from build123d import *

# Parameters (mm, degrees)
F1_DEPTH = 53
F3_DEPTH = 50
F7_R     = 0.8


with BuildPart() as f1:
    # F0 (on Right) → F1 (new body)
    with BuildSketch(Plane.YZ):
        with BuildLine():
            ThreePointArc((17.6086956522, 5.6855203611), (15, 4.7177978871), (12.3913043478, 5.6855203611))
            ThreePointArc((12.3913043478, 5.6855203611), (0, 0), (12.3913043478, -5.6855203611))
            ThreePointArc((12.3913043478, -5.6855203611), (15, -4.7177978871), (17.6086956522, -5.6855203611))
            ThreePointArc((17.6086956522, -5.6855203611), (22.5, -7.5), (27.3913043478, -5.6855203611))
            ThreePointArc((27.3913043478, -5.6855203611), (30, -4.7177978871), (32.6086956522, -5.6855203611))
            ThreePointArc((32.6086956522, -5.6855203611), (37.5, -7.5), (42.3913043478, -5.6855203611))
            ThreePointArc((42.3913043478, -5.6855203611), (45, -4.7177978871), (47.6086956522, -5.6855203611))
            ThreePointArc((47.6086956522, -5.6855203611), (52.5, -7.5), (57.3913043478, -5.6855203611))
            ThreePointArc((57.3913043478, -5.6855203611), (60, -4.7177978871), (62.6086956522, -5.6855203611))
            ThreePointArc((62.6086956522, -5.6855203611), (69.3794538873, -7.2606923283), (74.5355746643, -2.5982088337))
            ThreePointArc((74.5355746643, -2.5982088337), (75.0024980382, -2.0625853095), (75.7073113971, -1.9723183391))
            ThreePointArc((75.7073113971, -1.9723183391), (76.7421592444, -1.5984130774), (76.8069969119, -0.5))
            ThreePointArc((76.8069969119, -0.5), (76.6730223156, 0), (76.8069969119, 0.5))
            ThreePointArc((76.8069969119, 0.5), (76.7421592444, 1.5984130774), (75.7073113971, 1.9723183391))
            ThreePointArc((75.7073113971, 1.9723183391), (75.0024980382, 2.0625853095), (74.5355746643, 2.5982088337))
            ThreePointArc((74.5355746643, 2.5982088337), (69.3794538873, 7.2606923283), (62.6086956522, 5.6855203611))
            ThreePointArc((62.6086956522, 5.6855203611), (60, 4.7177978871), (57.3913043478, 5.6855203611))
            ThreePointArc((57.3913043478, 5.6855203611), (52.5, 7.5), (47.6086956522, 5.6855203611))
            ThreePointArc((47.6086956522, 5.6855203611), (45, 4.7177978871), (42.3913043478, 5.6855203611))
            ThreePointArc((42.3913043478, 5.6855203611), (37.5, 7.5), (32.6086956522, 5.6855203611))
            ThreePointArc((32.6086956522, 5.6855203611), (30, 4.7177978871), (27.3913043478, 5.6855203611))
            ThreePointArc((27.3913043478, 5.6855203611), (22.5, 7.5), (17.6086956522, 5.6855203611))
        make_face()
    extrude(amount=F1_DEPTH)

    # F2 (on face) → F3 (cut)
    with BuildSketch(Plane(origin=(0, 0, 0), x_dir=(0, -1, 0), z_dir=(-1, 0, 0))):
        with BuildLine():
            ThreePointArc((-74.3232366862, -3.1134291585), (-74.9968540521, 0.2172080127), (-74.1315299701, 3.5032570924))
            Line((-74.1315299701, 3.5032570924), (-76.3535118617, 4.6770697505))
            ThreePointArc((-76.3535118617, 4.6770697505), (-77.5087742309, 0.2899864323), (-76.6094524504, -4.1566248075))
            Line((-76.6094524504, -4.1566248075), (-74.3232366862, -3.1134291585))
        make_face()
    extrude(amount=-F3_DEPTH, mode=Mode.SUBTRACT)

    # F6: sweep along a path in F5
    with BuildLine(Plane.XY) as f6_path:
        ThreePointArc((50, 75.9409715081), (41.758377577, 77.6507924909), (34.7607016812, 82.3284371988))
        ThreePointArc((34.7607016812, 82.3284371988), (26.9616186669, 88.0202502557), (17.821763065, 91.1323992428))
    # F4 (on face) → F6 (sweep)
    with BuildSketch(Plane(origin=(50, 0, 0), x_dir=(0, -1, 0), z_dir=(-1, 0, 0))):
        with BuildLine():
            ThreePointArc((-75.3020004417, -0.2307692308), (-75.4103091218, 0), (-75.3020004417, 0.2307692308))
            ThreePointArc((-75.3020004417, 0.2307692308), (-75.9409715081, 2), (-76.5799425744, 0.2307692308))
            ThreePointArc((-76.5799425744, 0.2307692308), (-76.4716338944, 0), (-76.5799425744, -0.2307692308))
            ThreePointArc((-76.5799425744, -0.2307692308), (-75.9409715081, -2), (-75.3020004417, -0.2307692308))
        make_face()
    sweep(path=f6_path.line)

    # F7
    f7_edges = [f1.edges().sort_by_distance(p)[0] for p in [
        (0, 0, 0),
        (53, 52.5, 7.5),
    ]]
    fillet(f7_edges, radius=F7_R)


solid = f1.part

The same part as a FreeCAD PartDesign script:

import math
import FreeCAD as App
import Part
import Sketcher
from FreeCAD import Vector


def edges_at(feature, points):
    """Names of the edges that pass closest to the given points."""
    edges = feature.Shape.Edges
    near = lambda p: min(range(len(edges)), key=lambda i: edges[i].distToShape(Part.Vertex(*p))[0])
    return sorted({f"Edge{near(p) + 1}" for p in points})

doc = App.newDocument("Part")
body = doc.addObject("PartDesign::Body", "Body")

sketch1 = doc.addObject("Sketcher::SketchObject", "Sketch")
body.addObject(sketch1)
sketch1.AttachmentSupport = (doc.YZ_Plane, [""])
sketch1.MapMode = "FlatFace"
sketch1.addGeometry([
    Part.ArcOfCircle(Part.Circle(Vector(15, 8.717798, 0), Vector(0, 0, 1), 4), math.radians(-130.705707), math.radians(-49.294293)),
    Part.ArcOfCircle(Part.Circle(Vector(7.5, 0, 0), Vector(0, 0, 1), 7.5), math.radians(49.294293), math.radians(310.705707)),
    Part.ArcOfCircle(Part.Circle(Vector(15, -8.717798, 0), Vector(0, 0, 1), 4), math.radians(49.294293), math.radians(130.705707)),
    Part.ArcOfCircle(Part.Circle(Vector(22.5, 0, 0), Vector(0, 0, 1), 7.5), math.radians(-130.705707), math.radians(-49.294293)),
    Part.ArcOfCircle(Part.Circle(Vector(30, -8.717798, 0), Vector(0, 0, 1), 4), math.radians(49.294293), math.radians(130.705707)),
    Part.ArcOfCircle(Part.Circle(Vector(37.5, 0, 0), Vector(0, 0, 1), 7.5), math.radians(-130.705707), math.radians(-49.294293)),
    Part.ArcOfCircle(Part.Circle(Vector(45, -8.717798, 0), Vector(0, 0, 1), 4), math.radians(49.294293), math.radians(130.705707)),
    Part.ArcOfCircle(Part.Circle(Vector(52.5, 0, 0), Vector(0, 0, 1), 7.5), math.radians(-130.705707), math.radians(-49.294293)),
    Part.ArcOfCircle(Part.Circle(Vector(60, -8.717798, 0), Vector(0, 0, 1), 4), math.radians(49.294293), math.radians(130.705707)),
    Part.ArcOfCircle(Part.Circle(Vector(67.5, 0, 0), Vector(0, 0, 1), 7.5), math.radians(-130.705707), math.radians(-20.268981)),
    Part.ArcOfCircle(Part.Circle(Vector(75.473651, -2.944637, 0), Vector(0, 0, 1), 1), math.radians(76.487346), math.radians(159.731019)),
    Part.ArcOfCircle(Part.Circle(Vector(75.940972, -1, 0), Vector(0, 0, 1), 1), math.radians(-103.512654), math.radians(30)),
    Part.ArcOfCircle(Part.Circle(Vector(77.673022, 0, 0), Vector(0, 0, 1), 1), math.radians(150), math.radians(210)),
    Part.ArcOfCircle(Part.Circle(Vector(75.940972, 1, 0), Vector(0, 0, 1), 1), math.radians(-30), math.radians(103.512654)),
    Part.ArcOfCircle(Part.Circle(Vector(75.473651, 2.944637, 0), Vector(0, 0, 1), 1), math.radians(-159.731019), math.radians(-76.487346)),
    Part.ArcOfCircle(Part.Circle(Vector(67.5, 0, 0), Vector(0, 0, 1), 7.5), math.radians(20.268981), math.radians(130.705707)),
    Part.ArcOfCircle(Part.Circle(Vector(60, 8.717798, 0), Vector(0, 0, 1), 4), math.radians(-130.705707), math.radians(-49.294293)),
    Part.ArcOfCircle(Part.Circle(Vector(52.5, 0, 0), Vector(0, 0, 1), 7.5), math.radians(49.294293), math.radians(130.705707)),
    Part.ArcOfCircle(Part.Circle(Vector(45, 8.717798, 0), Vector(0, 0, 1), 4), math.radians(-130.705707), math.radians(-49.294293)),
    Part.ArcOfCircle(Part.Circle(Vector(37.5, 0, 0), Vector(0, 0, 1), 7.5), math.radians(49.294293), math.radians(130.705707)),
    Part.ArcOfCircle(Part.Circle(Vector(30, 8.717798, 0), Vector(0, 0, 1), 4), math.radians(-130.705707), math.radians(-49.294293)),
    Part.ArcOfCircle(Part.Circle(Vector(22.5, 0, 0), Vector(0, 0, 1), 7.5), math.radians(49.294293), math.radians(130.705707)),
], False)
sketch1.addConstraint([
    Sketcher.Constraint("Tangent", 0, 1, 1, 1),
    Sketcher.Constraint("Tangent", 1, 2, 2, 2),
    Sketcher.Constraint("Tangent", 2, 1, 3, 1),
    Sketcher.Constraint("Tangent", 3, 2, 4, 2),
    Sketcher.Constraint("Tangent", 4, 1, 5, 1),
    Sketcher.Constraint("Tangent", 5, 2, 6, 2),
    Sketcher.Constraint("Tangent", 6, 1, 7, 1),
    Sketcher.Constraint("Tangent", 7, 2, 8, 2),
    Sketcher.Constraint("Tangent", 8, 1, 9, 1),
    Sketcher.Constraint("Tangent", 9, 2, 10, 2),
    Sketcher.Constraint("Tangent", 10, 1, 11, 1),
    Sketcher.Constraint("Tangent", 11, 2, 12, 2),
    Sketcher.Constraint("Tangent", 12, 1, 13, 1),
    Sketcher.Constraint("Tangent", 13, 2, 14, 2),
    Sketcher.Constraint("Tangent", 14, 1, 15, 1),
    Sketcher.Constraint("Tangent", 15, 2, 16, 2),
    Sketcher.Constraint("Tangent", 16, 1, 17, 1),
    Sketcher.Constraint("Tangent", 17, 2, 18, 2),
    Sketcher.Constraint("Tangent", 18, 1, 19, 1),
    Sketcher.Constraint("Tangent", 19, 2, 20, 2),
    Sketcher.Constraint("Tangent", 20, 1, 21, 1),
    Sketcher.Constraint("Tangent", 21, 2, 0, 2),
    Sketcher.Constraint("Coincident", 15, 3, 9, 3),
    Sketcher.Constraint("Coincident", 17, 3, 7, 3),
    Sketcher.Constraint("Coincident", 19, 3, 5, 3),
    Sketcher.Constraint("Coincident", 21, 3, 3, 3),
    Sketcher.Constraint("Equal", 0, 2),
    Sketcher.Constraint("Equal", 1, 3),
    Sketcher.Constraint("Equal", 2, 4),
    Sketcher.Constraint("Equal", 3, 5),
    Sketcher.Constraint("Equal", 4, 6),
    Sketcher.Constraint("Equal", 5, 7),
    Sketcher.Constraint("Equal", 6, 8),
    Sketcher.Constraint("Equal", 7, 9),
    Sketcher.Constraint("Equal", 10, 11),
    Sketcher.Constraint("Equal", 11, 12),
    Sketcher.Constraint("Equal", 12, 13),
    Sketcher.Constraint("Equal", 13, 14),
    Sketcher.Constraint("Equal", 9, 15),
    Sketcher.Constraint("Equal", 8, 16),
    Sketcher.Constraint("Equal", 15, 17),
    Sketcher.Constraint("Equal", 16, 18),
    Sketcher.Constraint("Equal", 17, 19),
    Sketcher.Constraint("Equal", 18, 20),
    Sketcher.Constraint("Equal", 19, 21),
    Sketcher.Constraint("Symmetric", 0, 3, 2, 3, -1),
    Sketcher.Constraint("Symmetric", 11, 3, 13, 3, -1),
    Sketcher.Constraint("Symmetric", 8, 3, 16, 3, -1),
    Sketcher.Constraint("PointOnObject", 5, 3, -1),
    Sketcher.Constraint("Horizontal", 2, 3, 4, 3),
    Sketcher.Constraint("Horizontal", 4, 3, 6, 3),
    Sketcher.Constraint("Horizontal", 6, 3, 8, 3),
    Sketcher.Constraint("Radius", 0, 4.0),
    Sketcher.Constraint("Radius", 10, 1.0),
    Sketcher.Constraint("Radius", 1, 7.5),
    Sketcher.Constraint("DistanceX", -1, 1, 0, 3, 15.0),
    Sketcher.Constraint("DistanceX", -1, 1, 4, 3, 30.0),
    Sketcher.Constraint("DistanceY", 11, 3, -1, 1, 1.0),
    Sketcher.Constraint("DistanceX", -1, 1, 10, 3, 75.473651),
])
pad1 = doc.addObject("PartDesign::Pad", "Pad")
body.addObject(pad1)
pad1.Profile = sketch1
pad1.Length = 53

sketch2 = doc.addObject("Sketcher::SketchObject", "Sketch001")
body.addObject(sketch2)
sketch2.AttachmentSupport = (doc.YZ_Plane, [""])
sketch2.MapMode = "FlatFace"
sketch2.addGeometry([
    Part.ArcOfCircle(Part.Circle(Vector(67.5, 0, 0), Vector(0, 0, 1), 7.5), math.radians(-24.527119), math.radians(27.846277)),
    Part.LineSegment(Vector(74.13153, 3.503257, 0), Vector(76.353512, 4.67707, 0)),
    Part.ArcOfCircle(Part.Circle(Vector(67.5, 0, 0), Vector(0, 0, 1), 10.012974), math.radians(-24.527119), math.radians(27.846277)),
    Part.LineSegment(Vector(76.609452, -4.156625, 0), Vector(74.323237, -3.113429, 0)),
], False)
sketch2.addConstraint([
    Sketcher.Constraint("Coincident", 0, 2, 1, 1),
    Sketcher.Constraint("Coincident", 1, 2, 2, 2),
    Sketcher.Constraint("Coincident", 2, 1, 3, 1),
    Sketcher.Constraint("Coincident", 3, 2, 0, 1),
    Sketcher.Constraint("Coincident", 2, 3, 0, 3),
    Sketcher.Constraint("PointOnObject", 0, 3, -1),
    Sketcher.Constraint("Radius", 0, 7.5),
    Sketcher.Constraint("DistanceX", -1, 1, 0, 3, 67.5),
    Sketcher.Constraint("Radius", 2, 10.012974),
    Sketcher.Constraint("DistanceY", 3, 2, 1, 2, 7.790499),
    Sketcher.Constraint("DistanceX", -1, 1, 0, 2, 74.13153),
    Sketcher.Constraint("DistanceX", -1, 1, 1, 2, 76.353512),
    Sketcher.Constraint("DistanceY", 2, 1, 0, 2, 7.659882),
])
pocket1 = doc.addObject("PartDesign::Pocket", "Pocket")
body.addObject(pocket1)
pocket1.Profile = sketch2
pocket1.Length = 50
pocket1.Reversed = True

sketch3 = doc.addObject("Sketcher::SketchObject", "Sketch002")
body.addObject(sketch3)
sketch3.AttachmentSupport = (doc.YZ_Plane, [""])
sketch3.MapMode = "FlatFace"
sketch3.AttachmentOffset = App.Placement(Vector(0, 0, 50), App.Rotation())
sketch3.addGeometry([
    Part.ArcOfCircle(Part.Circle(Vector(75.110309, 0, 0), Vector(0, 0, 1), 0.3), math.radians(-50.284863), math.radians(50.284863)),
    Part.ArcOfCircle(Part.Circle(Vector(75.940972, 1, 0), Vector(0, 0, 1), 1), math.radians(-50.284863), math.radians(230.284863)),
    Part.ArcOfCircle(Part.Circle(Vector(76.771634, 0, 0), Vector(0, 0, 1), 0.3), math.radians(129.715137), math.radians(230.284863)),
    Part.ArcOfCircle(Part.Circle(Vector(75.940972, -1, 0), Vector(0, 0, 1), 1), math.radians(129.715137), math.radians(410.284863)),
], False)
sketch3.addConstraint([
    Sketcher.Constraint("Tangent", 0, 2, 1, 2),
    Sketcher.Constraint("Tangent", 1, 1, 2, 1),
    Sketcher.Constraint("Tangent", 2, 2, 3, 2),
    Sketcher.Constraint("Tangent", 3, 1, 0, 1),
    Sketcher.Constraint("Equal", 0, 2),
    Sketcher.Constraint("Equal", 1, 3),
    Sketcher.Constraint("Symmetric", 1, 3, 3, 3, -1),
    Sketcher.Constraint("Radius", 1, 1.0),
    Sketcher.Constraint("Radius", 0, 0.3),
    Sketcher.Constraint("DistanceY", -1, 1, 1, 3, 1.0),
    Sketcher.Constraint("DistanceX", -1, 1, 0, 2, 75.302),
])

sketch4 = doc.addObject("Sketcher::SketchObject", "Sketch003")
body.addObject(sketch4)
sketch4.AttachmentSupport = (doc.XY_Plane, [""])
sketch4.MapMode = "FlatFace"
sketch4.addGeometry([
    Part.ArcOfCircle(Part.Circle(Vector(50.269017, 97.955586, 0), Vector(0, 0, 1), 22.016258), math.radians(-134.781322), math.radians(-90.700115)),
    Part.ArcOfCircle(Part.Circle(Vector(12.173984, 59.568648, 0), Vector(0, 0, 1), 32.065056), math.radians(45.218678), math.radians(79.855285)),
], False)
sketch4.addConstraint([
    Sketcher.Constraint("Tangent", 0, 1, 1, 1),
    Sketcher.Constraint("DistanceX", -1, 1, 0, 2, 50.0),
    Sketcher.Constraint("Radius", 0, 22.016258),
    Sketcher.Constraint("Radius", 1, 32.065056),
    Sketcher.Constraint("DistanceX", -1, 1, 0, 1, 34.760702),
    Sketcher.Constraint("DistanceY", -1, 1, 1, 2, 91.132399),
    Sketcher.Constraint("DistanceY", -1, 1, 0, 2, 75.940972),
    Sketcher.Constraint("DistanceY", 1, 3, 0, 3, 38.386938),
])
doc.recompute()

additivepipe = doc.addObject("PartDesign::AdditivePipe", "AdditivePipe")
body.addObject(additivepipe)
additivepipe.Profile = sketch3
additivepipe.Spine = (sketch4, ["Edge1", "Edge2"])
doc.recompute()

fillet = doc.addObject("PartDesign::Fillet", "Fillet")
body.addObject(fillet)
fillet.Base = (additivepipe, edges_at(additivepipe, [(0, 0, 0), (53, 52.5, 7.5)]))
fillet.Radius = 0.8

doc.recompute()
